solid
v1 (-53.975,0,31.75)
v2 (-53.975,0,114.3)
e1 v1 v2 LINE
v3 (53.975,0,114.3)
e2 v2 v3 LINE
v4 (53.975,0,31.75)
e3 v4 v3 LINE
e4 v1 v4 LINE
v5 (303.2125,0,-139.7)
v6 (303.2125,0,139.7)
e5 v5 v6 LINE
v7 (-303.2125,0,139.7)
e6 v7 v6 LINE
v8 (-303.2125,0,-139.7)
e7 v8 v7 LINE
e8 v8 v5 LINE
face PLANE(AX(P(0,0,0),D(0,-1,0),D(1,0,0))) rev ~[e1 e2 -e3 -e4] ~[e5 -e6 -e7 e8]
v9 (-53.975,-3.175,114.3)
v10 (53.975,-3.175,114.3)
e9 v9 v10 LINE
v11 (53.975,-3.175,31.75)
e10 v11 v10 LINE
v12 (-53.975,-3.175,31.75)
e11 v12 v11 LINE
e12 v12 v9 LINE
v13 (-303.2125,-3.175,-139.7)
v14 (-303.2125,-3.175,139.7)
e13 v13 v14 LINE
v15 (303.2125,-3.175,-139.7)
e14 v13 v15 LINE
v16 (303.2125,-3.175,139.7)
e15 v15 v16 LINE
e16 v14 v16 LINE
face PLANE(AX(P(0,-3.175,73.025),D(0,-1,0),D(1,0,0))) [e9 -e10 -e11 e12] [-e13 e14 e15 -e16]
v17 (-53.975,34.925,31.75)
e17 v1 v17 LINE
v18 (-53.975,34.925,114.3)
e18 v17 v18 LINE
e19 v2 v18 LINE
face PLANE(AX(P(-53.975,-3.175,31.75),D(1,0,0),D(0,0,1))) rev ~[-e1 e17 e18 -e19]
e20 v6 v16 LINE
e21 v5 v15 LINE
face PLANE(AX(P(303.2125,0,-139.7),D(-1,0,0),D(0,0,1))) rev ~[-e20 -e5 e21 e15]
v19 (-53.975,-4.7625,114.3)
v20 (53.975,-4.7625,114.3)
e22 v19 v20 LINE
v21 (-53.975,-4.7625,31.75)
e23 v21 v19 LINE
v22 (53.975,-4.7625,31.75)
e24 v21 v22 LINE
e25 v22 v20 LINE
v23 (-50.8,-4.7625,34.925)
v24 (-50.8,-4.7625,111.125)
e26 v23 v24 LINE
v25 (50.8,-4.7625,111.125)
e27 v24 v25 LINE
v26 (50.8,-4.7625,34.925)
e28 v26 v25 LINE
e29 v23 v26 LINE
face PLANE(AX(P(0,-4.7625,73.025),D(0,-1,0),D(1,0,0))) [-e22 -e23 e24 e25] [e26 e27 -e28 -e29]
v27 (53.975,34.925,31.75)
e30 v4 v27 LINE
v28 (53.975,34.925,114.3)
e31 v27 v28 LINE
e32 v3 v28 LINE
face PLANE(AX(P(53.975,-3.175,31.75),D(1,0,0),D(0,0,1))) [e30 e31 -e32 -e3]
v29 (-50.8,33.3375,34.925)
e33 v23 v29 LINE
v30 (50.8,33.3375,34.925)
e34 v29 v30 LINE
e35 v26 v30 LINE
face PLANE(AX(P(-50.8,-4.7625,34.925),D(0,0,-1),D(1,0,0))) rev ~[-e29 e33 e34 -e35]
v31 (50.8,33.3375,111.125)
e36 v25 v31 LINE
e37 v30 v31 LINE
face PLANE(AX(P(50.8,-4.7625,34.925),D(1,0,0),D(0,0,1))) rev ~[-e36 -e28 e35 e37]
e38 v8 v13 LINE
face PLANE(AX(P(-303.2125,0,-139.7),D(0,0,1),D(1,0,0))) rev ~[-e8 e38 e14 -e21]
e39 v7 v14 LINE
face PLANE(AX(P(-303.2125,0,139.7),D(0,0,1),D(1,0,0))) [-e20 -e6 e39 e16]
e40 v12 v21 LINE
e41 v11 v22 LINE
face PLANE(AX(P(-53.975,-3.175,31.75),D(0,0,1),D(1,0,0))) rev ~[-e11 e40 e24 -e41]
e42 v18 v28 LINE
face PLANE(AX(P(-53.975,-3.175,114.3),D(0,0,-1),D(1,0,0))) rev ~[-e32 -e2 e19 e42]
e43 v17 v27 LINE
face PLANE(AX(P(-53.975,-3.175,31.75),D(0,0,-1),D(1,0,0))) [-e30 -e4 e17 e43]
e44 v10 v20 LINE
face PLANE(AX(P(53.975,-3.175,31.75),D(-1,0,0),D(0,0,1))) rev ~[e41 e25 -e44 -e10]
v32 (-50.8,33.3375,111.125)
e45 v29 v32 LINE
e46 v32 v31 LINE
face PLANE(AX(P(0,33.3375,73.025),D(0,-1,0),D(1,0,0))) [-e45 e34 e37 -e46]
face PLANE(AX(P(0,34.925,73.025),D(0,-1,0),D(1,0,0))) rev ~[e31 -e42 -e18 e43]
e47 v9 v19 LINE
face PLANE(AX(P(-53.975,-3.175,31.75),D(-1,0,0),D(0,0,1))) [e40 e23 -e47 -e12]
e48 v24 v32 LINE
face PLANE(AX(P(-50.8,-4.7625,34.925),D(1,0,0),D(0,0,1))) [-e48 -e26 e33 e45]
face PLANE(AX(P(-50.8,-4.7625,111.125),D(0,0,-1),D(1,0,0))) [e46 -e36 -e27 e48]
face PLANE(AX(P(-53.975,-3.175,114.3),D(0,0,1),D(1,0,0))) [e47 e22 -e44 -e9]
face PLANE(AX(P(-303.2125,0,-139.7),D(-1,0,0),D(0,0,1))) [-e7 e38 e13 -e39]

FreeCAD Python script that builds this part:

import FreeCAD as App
import Part
import Sketcher
Q = App.Units.Quantity

doc = App.newDocument("Part")
body = doc.addObject("PartDesign::Body", "Body")

sketch1 = body.newObject("Sketcher::SketchObject", "Sketch")
sketch1.AttachmentSupport = (doc.getObject("XZ_Plane"), [""])
sketch1.MapMode = "FlatFace"
sketch1.addGeometry([
    Part.LineSegment(App.Vector(-303, 140, 0), App.Vector(-303, -140, 0)),
    Part.LineSegment(App.Vector(-303, -140, 0), App.Vector(303, -140, 0)),
    Part.LineSegment(App.Vector(303, -140, 0), App.Vector(303, 140, 0)),
    Part.LineSegment(App.Vector(303, 140, 0), App.Vector(-303, 140, 0)),
], False)
sketch1.addConstraint([
    Sketcher.Constraint("Coincident", 0, 2, 1, 1),
    Sketcher.Constraint("Coincident", 1, 2, 2, 1),
    Sketcher.Constraint("Coincident", 2, 2, 3, 1),
    Sketcher.Constraint("Coincident", 3, 2, 0, 1),
    Sketcher.Constraint("Vertical", 0),
    Sketcher.Constraint("Horizontal", 1),
    Sketcher.Constraint("Vertical", 2),
    Sketcher.Constraint("Horizontal", 3),
    Sketcher.Constraint("Symmetric", 0, 2, 2, 2, -1, 1),
    Sketcher.Constraint("DistanceY", 0, 2, 0, 1, Q("11 in")),
    Sketcher.Constraint("DistanceX", 1, 1, 1, 2, Q("23.875 in")),
])
pad1 = body.newObject("PartDesign::Pad", "Pad")
pad1.Profile = sketch1
pad1.Length = Q("0.125 in")

sketch2 = body.newObject("Sketcher::SketchObject", "Sketch001")
sketch2.AttachmentSupport = (doc.getObject("XZ_Plane"), [""])
sketch2.MapMode = "FlatFace"
sketch2.AttachmentOffset = App.Placement(App.Vector(0, 0, 0.125 * 25.4), App.Rotation())
sketch2.addGeometry([
    Part.LineSegment(App.Vector(-54, 114, 0), App.Vector(-54, 32, 0)),
    Part.LineSegment(App.Vector(-54, 32, 0), App.Vector(54, 32, 0)),
    Part.LineSegment(App.Vector(54, 32, 0), App.Vector(54, 114, 0)),
    Part.LineSegment(App.Vector(54, 114, 0), App.Vector(-54, 114, 0)),
], False)
sketch2.addConstraint([
    Sketcher.Constraint("Coincident", 0, 2, 1, 1),
    Sketcher.Constraint("Coincident", 1, 2, 2, 1),
    Sketcher.Constraint("Coincident", 2, 2, 3, 1),
    Sketcher.Constraint("Coincident", 3, 2, 0, 1),
    Sketcher.Constraint("Vertical", 0),
    Sketcher.Constraint("Horizontal", 1),
    Sketcher.Constraint("Vertical", 2),
    Sketcher.Constraint("Horizontal", 3),
    Sketcher.Constraint("DistanceX", 1, 1, 1, 2, Q("4.25 in")),
    Sketcher.Constraint("DistanceY", 0, 2, 0, 1, Q("3.25 in")),
    Sketcher.Constraint("DistanceY", -1, 1, 2, 2, Q("4.5 in")),
    Sketcher.Constraint("DistanceX", 0, 2, -1, 1, Q("2.125 in")),
])
pad2 = body.newObject("PartDesign::Pad", "Pad001")
pad2.Profile = sketch2
pad2.Length = Q("1.5 in")
pad2.Reversed = True

sketch3 = body.newObject("Sketcher::SketchObject", "Sketch002")
sketch3.AttachmentSupport = (doc.getObject("XZ_Plane"), [""])
sketch3.MapMode = "FlatFace"
sketch3.AttachmentOffset = App.Placement(App.Vector(0, 0, 0.125 * 25.4), App.Rotation())
sketch3.addGeometry([
    Part.LineSegment(App.Vector(-54, 114, 0), App.Vector(-54, 32, 0)),
    Part.LineSegment(App.Vector(-54, 32, 0), App.Vector(54, 32, 0)),
    Part.LineSegment(App.Vector(54, 32, 0), App.Vector(54, 114, 0)),
    Part.LineSegment(App.Vector(54, 114, 0), App.Vector(-54, 114, 0)),
], False)
sketch3.addConstraint([
    Sketcher.Constraint("Coincident", 0, 2, 1, 1),
    Sketcher.Constraint("Coincident", 1, 2, 2, 1),
    Sketcher.Constraint("Coincident", 2, 2, 3, 1),
    Sketcher.Constraint("Coincident", 3, 2, 0, 1),
    Sketcher.Constraint("Vertical", 0),
    Sketcher.Constraint("Horizontal", 1),
    Sketcher.Constraint("Vertical", 2),
    Sketcher.Constraint("Horizontal", 3),
    Sketcher.Constraint("DistanceX", 1, 1, 1, 2, Q("4.25 in")),
    Sketcher.Constraint("DistanceY", 0, 2, 0, 1, Q("3.25 in")),
    Sketcher.Constraint("DistanceY", -1, 1, 2, 2, Q("4.5 in")),
    Sketcher.Constraint("DistanceX", 0, 2, -1, 1, Q("2.125 in")),
])
pad3 = body.newObject("PartDesign::Pad", "Pad002")
pad3.Profile = sketch3
pad3.Length = Q("0.0625 in")

sketch4 = body.newObject("Sketcher::SketchObject", "Sketch003")
sketch4.AttachmentSupport = (doc.getObject("XZ_Plane"), [""])
sketch4.MapMode = "FlatFace"
sketch4.AttachmentOffset = App.Placement(App.Vector(0, 0, 0.1875 * 25.4), App.Rotation())
sketch4.addGeometry([
    Part.LineSegment(App.Vector(-51, 111, 0), App.Vector(-51, 35, 0)),
    Part.LineSegment(App.Vector(-51, 35, 0), App.Vector(51, 35, 0)),
    Part.LineSegment(App.Vector(51, 35, 0), App.Vector(51, 111, 0)),
    Part.LineSegment(App.Vector(51, 111, 0), App.Vector(-51, 111, 0)),
], False)
sketch4.addConstraint([
    Sketcher.Constraint("Coincident", 0, 2, 1, 1),
    Sketcher.Constraint("Coincident", 1, 2, 2, 1),
    Sketcher.Constraint("Coincident", 2, 2, 3, 1),
    Sketcher.Constraint("Coincident", 3, 2, 0, 1),
    Sketcher.Constraint("Vertical", 0),
    Sketcher.Constraint("Horizontal", 1),
    Sketcher.Constraint("Vertical", 2),
    Sketcher.Constraint("Horizontal", 3),
    Sketcher.Constraint("DistanceX", 1, 1, 1, 2, Q("4 in")),
    Sketcher.Constraint("DistanceY", 0, 2, 0, 1, Q("3 in")),
    Sketcher.Constraint("DistanceX", 0, 2, -1, 1, Q("2 in")),
    Sketcher.Constraint("DistanceY", -1, 1, 0, 2, Q("1.375 in")),
])
pocket1 = body.newObject("PartDesign::Pocket", "Pocket")
pocket1.Profile = sketch4
pocket1.Length = Q("1.5 in")

doc.recompute()
